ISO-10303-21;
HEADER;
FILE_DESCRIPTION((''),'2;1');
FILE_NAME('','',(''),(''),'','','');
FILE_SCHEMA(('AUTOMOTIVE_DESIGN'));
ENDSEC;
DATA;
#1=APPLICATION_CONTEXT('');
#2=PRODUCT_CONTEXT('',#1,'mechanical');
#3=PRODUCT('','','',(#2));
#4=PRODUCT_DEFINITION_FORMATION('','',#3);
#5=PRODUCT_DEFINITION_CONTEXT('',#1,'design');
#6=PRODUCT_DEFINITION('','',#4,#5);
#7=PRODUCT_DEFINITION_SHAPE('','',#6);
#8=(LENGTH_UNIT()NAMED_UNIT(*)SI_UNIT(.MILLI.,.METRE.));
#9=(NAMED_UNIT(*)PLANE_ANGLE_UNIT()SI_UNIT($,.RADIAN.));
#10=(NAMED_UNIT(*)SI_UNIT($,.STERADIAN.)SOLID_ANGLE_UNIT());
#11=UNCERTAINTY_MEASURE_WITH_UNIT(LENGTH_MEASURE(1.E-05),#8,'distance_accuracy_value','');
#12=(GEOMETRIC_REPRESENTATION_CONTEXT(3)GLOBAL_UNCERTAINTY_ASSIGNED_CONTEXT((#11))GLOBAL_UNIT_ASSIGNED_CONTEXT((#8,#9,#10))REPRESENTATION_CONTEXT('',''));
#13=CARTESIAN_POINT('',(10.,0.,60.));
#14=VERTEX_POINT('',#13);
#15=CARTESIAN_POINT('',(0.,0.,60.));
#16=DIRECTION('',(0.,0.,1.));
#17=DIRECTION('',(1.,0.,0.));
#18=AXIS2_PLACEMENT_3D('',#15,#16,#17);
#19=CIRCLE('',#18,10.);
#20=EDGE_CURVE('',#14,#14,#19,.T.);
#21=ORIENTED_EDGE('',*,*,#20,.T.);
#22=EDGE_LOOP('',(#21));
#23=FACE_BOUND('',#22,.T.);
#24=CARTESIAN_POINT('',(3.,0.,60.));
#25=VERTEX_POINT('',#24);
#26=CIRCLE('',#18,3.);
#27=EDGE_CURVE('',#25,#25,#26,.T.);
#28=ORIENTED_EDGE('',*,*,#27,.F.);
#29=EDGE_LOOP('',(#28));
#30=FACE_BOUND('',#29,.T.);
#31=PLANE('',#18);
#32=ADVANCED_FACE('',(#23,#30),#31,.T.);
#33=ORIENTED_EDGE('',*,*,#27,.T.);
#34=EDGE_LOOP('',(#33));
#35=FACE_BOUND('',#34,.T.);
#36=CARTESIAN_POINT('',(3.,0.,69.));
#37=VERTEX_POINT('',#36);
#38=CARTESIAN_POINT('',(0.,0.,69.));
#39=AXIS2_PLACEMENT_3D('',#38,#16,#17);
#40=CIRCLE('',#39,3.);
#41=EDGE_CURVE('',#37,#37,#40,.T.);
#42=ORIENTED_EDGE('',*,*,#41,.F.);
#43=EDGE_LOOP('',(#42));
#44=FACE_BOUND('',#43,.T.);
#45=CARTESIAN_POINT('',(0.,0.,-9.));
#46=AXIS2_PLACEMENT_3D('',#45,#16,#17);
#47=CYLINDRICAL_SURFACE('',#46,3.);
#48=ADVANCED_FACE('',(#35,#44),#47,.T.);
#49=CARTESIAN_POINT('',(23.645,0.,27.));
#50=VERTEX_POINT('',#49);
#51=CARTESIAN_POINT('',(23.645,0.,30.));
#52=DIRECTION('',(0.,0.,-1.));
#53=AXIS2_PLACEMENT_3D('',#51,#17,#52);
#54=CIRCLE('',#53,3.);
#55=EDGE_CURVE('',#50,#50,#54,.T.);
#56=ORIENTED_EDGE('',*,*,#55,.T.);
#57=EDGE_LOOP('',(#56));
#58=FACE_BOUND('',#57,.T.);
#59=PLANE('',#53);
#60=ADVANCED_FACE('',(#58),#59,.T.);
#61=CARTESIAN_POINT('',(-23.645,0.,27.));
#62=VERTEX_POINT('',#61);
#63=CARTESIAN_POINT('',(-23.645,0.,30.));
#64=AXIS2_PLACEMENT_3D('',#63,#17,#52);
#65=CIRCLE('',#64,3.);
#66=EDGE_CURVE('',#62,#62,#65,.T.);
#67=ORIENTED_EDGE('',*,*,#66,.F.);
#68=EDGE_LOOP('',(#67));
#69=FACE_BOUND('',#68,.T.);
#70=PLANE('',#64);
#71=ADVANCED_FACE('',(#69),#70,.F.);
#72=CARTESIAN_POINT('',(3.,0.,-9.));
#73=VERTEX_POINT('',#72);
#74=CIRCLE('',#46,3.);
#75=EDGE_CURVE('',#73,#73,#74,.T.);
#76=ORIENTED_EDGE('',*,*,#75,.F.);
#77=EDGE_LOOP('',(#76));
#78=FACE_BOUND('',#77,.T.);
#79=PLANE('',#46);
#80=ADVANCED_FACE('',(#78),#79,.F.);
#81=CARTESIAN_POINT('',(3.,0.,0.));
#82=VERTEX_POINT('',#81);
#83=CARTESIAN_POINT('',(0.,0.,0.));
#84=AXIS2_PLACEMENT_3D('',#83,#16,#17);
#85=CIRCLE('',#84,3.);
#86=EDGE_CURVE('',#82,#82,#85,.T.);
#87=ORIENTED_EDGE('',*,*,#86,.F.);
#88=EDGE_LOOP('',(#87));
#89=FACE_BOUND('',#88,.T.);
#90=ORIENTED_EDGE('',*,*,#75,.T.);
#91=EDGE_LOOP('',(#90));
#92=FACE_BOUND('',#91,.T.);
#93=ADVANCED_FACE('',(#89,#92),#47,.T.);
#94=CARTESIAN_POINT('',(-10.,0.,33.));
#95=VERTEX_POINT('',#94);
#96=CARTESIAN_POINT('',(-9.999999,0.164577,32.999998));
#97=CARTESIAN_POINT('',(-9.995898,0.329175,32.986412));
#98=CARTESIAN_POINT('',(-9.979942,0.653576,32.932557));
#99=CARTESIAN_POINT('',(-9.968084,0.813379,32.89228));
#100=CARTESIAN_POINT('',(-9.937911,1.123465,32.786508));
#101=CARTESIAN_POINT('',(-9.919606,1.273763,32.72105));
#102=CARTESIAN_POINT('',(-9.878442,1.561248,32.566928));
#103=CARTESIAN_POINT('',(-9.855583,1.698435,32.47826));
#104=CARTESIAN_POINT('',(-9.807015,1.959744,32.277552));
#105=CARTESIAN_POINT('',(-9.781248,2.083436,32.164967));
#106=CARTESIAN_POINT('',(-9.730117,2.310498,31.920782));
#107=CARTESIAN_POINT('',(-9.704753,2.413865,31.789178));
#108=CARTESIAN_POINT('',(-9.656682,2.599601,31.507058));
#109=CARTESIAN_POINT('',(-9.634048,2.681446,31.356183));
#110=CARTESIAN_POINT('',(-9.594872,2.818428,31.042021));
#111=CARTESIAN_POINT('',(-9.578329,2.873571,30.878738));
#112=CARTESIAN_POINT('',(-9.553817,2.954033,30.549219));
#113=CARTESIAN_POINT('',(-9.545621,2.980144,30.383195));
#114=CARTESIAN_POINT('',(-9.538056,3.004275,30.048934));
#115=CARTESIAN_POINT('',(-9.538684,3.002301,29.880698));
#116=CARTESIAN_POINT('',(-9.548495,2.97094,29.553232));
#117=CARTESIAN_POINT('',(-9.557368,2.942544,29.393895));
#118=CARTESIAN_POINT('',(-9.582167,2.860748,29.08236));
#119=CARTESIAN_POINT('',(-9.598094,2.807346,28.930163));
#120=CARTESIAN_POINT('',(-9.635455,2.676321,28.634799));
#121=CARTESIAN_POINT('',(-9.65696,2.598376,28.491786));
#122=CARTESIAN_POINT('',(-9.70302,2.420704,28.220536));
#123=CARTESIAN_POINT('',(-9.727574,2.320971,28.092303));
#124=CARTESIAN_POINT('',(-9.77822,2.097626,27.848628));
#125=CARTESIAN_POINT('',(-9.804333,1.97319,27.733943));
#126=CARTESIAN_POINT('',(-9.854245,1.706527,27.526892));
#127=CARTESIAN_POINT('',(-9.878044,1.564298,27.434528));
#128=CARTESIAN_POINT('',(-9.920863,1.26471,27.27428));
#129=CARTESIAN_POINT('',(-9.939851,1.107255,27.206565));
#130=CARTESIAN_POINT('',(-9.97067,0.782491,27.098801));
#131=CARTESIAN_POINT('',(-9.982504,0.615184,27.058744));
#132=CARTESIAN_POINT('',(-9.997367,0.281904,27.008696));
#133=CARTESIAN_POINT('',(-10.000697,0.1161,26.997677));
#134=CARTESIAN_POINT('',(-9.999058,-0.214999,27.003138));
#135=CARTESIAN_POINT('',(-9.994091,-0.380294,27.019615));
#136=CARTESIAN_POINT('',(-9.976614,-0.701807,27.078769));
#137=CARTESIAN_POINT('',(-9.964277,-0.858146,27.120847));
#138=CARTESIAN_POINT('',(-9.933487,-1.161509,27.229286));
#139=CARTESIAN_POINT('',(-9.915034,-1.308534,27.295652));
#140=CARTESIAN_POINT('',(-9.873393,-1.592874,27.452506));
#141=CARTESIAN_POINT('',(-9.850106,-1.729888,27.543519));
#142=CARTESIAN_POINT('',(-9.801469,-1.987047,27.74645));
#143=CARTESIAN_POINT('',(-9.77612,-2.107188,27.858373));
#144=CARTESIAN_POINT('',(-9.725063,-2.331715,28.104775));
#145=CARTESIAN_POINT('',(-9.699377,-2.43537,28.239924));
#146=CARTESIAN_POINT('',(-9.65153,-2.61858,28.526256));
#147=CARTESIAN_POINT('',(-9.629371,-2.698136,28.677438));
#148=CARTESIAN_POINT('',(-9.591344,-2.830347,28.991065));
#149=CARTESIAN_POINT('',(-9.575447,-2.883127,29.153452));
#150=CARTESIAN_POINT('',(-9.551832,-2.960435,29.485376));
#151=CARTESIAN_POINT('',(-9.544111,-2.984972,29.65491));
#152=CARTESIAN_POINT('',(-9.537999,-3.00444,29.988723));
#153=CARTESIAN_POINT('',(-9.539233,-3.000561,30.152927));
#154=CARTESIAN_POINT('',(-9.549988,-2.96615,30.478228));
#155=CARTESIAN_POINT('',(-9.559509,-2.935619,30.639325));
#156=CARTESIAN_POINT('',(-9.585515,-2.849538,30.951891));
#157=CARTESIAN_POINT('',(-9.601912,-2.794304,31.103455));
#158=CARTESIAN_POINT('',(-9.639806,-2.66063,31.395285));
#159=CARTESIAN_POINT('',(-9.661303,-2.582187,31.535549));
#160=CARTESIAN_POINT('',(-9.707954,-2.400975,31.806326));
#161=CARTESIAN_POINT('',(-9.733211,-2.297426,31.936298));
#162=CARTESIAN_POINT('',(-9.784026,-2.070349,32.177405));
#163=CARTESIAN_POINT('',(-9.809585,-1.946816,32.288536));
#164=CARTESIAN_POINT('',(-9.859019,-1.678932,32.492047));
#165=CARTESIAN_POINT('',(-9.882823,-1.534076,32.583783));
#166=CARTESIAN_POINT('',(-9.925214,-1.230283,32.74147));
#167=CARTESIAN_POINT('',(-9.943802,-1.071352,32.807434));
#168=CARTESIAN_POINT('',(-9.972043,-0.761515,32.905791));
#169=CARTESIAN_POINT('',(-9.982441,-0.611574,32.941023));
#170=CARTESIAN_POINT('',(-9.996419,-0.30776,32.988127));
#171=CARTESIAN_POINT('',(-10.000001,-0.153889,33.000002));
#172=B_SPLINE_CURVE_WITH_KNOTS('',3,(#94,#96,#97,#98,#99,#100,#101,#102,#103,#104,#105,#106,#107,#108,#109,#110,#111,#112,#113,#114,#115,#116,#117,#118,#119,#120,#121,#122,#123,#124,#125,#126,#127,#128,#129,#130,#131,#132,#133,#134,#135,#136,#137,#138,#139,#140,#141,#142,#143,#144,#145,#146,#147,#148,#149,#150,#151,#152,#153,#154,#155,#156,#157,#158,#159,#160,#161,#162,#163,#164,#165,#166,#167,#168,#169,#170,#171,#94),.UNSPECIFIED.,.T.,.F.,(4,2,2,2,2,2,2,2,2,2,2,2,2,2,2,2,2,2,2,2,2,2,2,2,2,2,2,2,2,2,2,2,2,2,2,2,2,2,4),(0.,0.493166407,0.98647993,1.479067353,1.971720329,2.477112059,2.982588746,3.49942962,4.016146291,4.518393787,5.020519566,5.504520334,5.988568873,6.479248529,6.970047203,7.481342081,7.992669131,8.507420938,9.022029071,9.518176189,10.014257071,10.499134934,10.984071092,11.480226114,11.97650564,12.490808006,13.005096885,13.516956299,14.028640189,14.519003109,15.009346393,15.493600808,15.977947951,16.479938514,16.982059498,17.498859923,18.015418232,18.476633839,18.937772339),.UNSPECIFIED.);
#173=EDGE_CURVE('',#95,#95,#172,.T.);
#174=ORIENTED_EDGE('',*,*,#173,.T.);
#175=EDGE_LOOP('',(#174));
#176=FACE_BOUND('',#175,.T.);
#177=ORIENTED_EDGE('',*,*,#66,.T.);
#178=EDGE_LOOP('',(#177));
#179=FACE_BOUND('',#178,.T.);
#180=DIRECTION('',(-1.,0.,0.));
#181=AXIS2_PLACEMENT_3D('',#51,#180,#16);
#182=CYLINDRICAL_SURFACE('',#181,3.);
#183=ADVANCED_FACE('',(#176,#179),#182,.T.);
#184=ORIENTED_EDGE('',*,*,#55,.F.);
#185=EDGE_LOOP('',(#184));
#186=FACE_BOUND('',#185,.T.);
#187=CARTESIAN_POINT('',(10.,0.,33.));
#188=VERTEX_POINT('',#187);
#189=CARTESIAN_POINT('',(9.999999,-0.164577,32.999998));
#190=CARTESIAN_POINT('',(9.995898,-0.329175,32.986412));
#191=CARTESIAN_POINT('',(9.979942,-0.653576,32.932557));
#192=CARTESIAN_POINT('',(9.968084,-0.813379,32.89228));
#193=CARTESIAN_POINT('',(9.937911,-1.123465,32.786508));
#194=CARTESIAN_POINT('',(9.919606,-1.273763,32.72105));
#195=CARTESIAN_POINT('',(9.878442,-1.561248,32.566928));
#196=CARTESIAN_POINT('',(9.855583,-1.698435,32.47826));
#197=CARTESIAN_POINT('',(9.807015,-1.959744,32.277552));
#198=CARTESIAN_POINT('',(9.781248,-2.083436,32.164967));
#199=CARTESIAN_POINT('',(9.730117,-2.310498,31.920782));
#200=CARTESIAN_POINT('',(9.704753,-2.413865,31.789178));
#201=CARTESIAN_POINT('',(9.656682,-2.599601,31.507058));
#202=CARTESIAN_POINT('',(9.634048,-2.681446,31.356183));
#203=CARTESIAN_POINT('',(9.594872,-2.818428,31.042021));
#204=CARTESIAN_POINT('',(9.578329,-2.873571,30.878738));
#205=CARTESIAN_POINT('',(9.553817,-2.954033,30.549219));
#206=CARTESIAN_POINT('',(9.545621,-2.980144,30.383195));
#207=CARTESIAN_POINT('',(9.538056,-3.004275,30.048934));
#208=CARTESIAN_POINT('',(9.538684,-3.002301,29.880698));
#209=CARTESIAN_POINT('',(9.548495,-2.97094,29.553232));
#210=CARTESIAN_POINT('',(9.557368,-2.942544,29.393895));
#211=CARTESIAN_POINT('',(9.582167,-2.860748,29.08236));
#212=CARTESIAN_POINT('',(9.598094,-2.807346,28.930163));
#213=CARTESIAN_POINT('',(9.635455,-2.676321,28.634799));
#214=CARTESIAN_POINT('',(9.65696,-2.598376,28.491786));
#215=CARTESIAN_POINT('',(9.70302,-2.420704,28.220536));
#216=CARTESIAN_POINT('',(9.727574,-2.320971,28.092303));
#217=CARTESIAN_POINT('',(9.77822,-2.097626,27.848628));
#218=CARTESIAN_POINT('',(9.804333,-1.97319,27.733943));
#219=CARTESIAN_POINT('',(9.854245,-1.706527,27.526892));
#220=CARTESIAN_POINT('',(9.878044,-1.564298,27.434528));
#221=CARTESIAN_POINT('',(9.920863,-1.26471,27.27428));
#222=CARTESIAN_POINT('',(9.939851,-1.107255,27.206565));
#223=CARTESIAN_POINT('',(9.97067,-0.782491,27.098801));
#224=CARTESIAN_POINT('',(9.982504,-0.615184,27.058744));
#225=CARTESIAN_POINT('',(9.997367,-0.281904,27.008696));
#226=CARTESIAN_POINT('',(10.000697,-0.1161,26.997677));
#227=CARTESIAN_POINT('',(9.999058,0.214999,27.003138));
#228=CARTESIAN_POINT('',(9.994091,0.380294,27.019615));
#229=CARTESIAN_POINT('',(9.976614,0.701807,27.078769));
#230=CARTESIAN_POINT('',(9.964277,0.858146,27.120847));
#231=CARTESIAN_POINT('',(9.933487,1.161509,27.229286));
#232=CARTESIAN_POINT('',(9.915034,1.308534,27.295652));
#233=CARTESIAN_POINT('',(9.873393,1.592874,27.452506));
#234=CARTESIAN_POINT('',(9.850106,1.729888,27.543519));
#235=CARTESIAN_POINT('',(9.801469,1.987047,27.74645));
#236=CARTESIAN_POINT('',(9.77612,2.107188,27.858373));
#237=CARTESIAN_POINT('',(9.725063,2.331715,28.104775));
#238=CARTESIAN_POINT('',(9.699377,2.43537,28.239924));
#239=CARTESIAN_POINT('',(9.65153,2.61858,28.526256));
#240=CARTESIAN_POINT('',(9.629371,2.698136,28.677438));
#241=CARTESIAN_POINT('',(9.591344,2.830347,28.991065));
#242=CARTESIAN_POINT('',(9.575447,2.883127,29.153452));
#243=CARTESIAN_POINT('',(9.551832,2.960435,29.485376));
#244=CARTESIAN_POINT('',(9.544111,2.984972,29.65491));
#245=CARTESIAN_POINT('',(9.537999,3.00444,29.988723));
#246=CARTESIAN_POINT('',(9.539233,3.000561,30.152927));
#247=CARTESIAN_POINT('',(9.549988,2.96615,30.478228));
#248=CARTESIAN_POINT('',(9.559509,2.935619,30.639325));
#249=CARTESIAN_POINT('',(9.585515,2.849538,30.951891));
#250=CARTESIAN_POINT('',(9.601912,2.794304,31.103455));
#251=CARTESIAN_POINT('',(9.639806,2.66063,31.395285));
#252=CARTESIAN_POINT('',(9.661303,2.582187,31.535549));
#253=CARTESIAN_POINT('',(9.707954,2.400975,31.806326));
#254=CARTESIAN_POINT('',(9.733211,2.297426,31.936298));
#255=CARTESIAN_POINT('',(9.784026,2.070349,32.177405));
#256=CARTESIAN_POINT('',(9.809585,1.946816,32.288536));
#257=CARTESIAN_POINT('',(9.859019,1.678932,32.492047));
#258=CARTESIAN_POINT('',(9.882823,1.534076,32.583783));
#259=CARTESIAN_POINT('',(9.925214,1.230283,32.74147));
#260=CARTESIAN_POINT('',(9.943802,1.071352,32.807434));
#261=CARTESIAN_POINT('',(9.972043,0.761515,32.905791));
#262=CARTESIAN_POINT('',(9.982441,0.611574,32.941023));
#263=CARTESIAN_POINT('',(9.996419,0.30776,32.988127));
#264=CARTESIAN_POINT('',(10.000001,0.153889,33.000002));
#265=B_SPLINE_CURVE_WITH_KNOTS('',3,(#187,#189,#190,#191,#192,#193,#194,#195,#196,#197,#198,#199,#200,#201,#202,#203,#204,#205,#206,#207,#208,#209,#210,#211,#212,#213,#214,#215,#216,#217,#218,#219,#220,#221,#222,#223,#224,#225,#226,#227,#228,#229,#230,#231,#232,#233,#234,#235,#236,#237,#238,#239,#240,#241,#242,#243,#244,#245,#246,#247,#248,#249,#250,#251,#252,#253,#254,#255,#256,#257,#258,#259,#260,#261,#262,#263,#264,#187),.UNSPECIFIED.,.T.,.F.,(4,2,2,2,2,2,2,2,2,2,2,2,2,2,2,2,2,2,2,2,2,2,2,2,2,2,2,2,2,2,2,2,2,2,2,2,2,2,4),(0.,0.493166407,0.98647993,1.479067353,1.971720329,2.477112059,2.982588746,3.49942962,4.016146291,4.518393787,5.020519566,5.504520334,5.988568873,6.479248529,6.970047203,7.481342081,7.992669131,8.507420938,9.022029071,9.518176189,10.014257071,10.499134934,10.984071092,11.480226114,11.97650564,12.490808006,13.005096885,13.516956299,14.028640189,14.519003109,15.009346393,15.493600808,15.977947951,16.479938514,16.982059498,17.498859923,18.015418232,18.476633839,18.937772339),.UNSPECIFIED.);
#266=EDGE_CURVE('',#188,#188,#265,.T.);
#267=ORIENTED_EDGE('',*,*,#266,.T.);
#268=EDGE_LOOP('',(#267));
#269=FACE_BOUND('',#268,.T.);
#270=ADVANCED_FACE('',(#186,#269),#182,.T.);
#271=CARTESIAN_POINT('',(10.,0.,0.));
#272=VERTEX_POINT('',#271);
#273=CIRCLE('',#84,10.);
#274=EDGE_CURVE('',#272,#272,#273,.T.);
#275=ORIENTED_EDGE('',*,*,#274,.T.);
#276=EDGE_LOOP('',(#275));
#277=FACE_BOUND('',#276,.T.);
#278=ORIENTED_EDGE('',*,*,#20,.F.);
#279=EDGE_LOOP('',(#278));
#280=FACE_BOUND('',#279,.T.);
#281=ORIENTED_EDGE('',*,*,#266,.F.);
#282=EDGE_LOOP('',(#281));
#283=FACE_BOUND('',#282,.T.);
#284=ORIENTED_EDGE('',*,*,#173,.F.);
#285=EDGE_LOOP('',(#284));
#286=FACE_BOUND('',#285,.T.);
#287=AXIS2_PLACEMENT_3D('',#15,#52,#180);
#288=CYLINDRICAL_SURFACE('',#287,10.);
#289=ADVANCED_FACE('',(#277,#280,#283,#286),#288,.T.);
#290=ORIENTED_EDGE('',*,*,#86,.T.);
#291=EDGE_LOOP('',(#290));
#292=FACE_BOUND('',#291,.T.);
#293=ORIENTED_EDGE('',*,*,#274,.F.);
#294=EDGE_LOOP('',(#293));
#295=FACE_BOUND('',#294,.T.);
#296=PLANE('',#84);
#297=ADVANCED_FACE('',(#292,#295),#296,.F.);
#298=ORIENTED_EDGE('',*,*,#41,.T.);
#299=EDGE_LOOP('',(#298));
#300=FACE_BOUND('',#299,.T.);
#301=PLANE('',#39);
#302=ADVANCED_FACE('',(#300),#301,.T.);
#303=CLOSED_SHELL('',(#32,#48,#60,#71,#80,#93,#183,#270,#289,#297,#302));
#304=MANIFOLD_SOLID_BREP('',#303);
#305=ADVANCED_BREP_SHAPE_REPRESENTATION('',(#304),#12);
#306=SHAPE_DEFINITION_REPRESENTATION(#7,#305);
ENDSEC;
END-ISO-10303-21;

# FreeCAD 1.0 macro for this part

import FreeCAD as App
import Part
import Sketcher

V = App.Vector
Q = App.Units.Quantity

doc = App.newDocument("Part")
params = doc.addObject("Spreadsheet::Sheet", "Params")
for row, (alias, value) in enumerate([
    ("sketch1_diameter", "20 mm"),
    ("pad1_length", "60 mm"),
    ("sketch2_diameter", "6 mm"),
    ("pad2_length", "47.29 mm"),
    ("sketch3_diameter", "6 mm"),
    ("pad3_length", "9 mm"),
    ("pad3_length2", "69 mm"),
], start=1):
    params.set(f"A{row}", alias)
    params.set(f"B{row}", "=" + value)
    params.setAlias(f"B{row}", alias)

body = doc.addObject("PartDesign::Body", "Body")

# Sketch on XY plane
sketch1 = doc.addObject("Sketcher::SketchObject", "Sketch")
body.addObject(sketch1)
sketch1.AttachmentSupport = (doc.XY_Plane, [""])
sketch1.MapMode = "FlatFace"
sketch1.addGeometry(Part.Circle(V(0, 0, 0), V(0, 0, 1), 10), False)
sketch1.addConstraint(Sketcher.Constraint("Coincident", 0, 3, -1, 1))
sketch1.addConstraint(Sketcher.Constraint("Diameter", 0, Q("20 mm")))
sketch1.setExpression("Constraints[1]", "Params.sketch1_diameter")
pad1 = doc.addObject("PartDesign::Pad", "Pad")
body.addObject(pad1)
pad1.Profile = sketch1
pad1.setExpression("Length", "Params.pad1_length")

# Sketch on YZ plane
sketch2 = doc.addObject("Sketcher::SketchObject", "Sketch001")
body.addObject(sketch2)
sketch2.AttachmentSupport = (doc.YZ_Plane, [""])
sketch2.MapMode = "FlatFace"
sketch2.addGeometry(Part.Circle(V(0, 30, 0), V(0, 0, 1), 3), False)
sketch2.addConstraint(Sketcher.Constraint("PointOnObject", 0, 3, -2))
sketch2.addConstraint(Sketcher.Constraint("Diameter", 0, Q("6 mm")))
sketch2.addConstraint(Sketcher.Constraint("DistanceY", -1, 1, 0, 3, Q("30 mm")))
sketch2.setExpression("Constraints[1]", "Params.sketch2_diameter")
pad2 = doc.addObject("PartDesign::Pad", "Pad001")
body.addObject(pad2)
pad2.Profile = sketch2
pad2.setExpression("Length", "Params.pad2_length")
pad2.Midplane = True

# Sketch on XY plane
sketch3 = doc.addObject("Sketcher::SketchObject", "Sketch002")
body.addObject(sketch3)
sketch3.AttachmentSupport = (doc.XY_Plane, [""])
sketch3.MapMode = "FlatFace"
sketch3.AttachmentOffset = App.Placement(V(0, 0, 60), App.Rotation())
sketch3.addGeometry(Part.Circle(V(0, 0, 0), V(0, 0, 1), 3), False)
sketch3.addConstraint(Sketcher.Constraint("Coincident", 0, 3, -1, 1))
sketch3.addConstraint(Sketcher.Constraint("Diameter", 0, Q("6 mm")))
sketch3.setExpression("Constraints[1]", "Params.sketch3_diameter")
pad3 = doc.addObject("PartDesign::Pad", "Pad002")
body.addObject(pad3)
pad3.Profile = sketch3
pad3.Type = "TwoLengths"
pad3.setExpression("Length", "Params.pad3_length")
pad3.setExpression("Length2", "Params.pad3_length2")

doc.recompute()
